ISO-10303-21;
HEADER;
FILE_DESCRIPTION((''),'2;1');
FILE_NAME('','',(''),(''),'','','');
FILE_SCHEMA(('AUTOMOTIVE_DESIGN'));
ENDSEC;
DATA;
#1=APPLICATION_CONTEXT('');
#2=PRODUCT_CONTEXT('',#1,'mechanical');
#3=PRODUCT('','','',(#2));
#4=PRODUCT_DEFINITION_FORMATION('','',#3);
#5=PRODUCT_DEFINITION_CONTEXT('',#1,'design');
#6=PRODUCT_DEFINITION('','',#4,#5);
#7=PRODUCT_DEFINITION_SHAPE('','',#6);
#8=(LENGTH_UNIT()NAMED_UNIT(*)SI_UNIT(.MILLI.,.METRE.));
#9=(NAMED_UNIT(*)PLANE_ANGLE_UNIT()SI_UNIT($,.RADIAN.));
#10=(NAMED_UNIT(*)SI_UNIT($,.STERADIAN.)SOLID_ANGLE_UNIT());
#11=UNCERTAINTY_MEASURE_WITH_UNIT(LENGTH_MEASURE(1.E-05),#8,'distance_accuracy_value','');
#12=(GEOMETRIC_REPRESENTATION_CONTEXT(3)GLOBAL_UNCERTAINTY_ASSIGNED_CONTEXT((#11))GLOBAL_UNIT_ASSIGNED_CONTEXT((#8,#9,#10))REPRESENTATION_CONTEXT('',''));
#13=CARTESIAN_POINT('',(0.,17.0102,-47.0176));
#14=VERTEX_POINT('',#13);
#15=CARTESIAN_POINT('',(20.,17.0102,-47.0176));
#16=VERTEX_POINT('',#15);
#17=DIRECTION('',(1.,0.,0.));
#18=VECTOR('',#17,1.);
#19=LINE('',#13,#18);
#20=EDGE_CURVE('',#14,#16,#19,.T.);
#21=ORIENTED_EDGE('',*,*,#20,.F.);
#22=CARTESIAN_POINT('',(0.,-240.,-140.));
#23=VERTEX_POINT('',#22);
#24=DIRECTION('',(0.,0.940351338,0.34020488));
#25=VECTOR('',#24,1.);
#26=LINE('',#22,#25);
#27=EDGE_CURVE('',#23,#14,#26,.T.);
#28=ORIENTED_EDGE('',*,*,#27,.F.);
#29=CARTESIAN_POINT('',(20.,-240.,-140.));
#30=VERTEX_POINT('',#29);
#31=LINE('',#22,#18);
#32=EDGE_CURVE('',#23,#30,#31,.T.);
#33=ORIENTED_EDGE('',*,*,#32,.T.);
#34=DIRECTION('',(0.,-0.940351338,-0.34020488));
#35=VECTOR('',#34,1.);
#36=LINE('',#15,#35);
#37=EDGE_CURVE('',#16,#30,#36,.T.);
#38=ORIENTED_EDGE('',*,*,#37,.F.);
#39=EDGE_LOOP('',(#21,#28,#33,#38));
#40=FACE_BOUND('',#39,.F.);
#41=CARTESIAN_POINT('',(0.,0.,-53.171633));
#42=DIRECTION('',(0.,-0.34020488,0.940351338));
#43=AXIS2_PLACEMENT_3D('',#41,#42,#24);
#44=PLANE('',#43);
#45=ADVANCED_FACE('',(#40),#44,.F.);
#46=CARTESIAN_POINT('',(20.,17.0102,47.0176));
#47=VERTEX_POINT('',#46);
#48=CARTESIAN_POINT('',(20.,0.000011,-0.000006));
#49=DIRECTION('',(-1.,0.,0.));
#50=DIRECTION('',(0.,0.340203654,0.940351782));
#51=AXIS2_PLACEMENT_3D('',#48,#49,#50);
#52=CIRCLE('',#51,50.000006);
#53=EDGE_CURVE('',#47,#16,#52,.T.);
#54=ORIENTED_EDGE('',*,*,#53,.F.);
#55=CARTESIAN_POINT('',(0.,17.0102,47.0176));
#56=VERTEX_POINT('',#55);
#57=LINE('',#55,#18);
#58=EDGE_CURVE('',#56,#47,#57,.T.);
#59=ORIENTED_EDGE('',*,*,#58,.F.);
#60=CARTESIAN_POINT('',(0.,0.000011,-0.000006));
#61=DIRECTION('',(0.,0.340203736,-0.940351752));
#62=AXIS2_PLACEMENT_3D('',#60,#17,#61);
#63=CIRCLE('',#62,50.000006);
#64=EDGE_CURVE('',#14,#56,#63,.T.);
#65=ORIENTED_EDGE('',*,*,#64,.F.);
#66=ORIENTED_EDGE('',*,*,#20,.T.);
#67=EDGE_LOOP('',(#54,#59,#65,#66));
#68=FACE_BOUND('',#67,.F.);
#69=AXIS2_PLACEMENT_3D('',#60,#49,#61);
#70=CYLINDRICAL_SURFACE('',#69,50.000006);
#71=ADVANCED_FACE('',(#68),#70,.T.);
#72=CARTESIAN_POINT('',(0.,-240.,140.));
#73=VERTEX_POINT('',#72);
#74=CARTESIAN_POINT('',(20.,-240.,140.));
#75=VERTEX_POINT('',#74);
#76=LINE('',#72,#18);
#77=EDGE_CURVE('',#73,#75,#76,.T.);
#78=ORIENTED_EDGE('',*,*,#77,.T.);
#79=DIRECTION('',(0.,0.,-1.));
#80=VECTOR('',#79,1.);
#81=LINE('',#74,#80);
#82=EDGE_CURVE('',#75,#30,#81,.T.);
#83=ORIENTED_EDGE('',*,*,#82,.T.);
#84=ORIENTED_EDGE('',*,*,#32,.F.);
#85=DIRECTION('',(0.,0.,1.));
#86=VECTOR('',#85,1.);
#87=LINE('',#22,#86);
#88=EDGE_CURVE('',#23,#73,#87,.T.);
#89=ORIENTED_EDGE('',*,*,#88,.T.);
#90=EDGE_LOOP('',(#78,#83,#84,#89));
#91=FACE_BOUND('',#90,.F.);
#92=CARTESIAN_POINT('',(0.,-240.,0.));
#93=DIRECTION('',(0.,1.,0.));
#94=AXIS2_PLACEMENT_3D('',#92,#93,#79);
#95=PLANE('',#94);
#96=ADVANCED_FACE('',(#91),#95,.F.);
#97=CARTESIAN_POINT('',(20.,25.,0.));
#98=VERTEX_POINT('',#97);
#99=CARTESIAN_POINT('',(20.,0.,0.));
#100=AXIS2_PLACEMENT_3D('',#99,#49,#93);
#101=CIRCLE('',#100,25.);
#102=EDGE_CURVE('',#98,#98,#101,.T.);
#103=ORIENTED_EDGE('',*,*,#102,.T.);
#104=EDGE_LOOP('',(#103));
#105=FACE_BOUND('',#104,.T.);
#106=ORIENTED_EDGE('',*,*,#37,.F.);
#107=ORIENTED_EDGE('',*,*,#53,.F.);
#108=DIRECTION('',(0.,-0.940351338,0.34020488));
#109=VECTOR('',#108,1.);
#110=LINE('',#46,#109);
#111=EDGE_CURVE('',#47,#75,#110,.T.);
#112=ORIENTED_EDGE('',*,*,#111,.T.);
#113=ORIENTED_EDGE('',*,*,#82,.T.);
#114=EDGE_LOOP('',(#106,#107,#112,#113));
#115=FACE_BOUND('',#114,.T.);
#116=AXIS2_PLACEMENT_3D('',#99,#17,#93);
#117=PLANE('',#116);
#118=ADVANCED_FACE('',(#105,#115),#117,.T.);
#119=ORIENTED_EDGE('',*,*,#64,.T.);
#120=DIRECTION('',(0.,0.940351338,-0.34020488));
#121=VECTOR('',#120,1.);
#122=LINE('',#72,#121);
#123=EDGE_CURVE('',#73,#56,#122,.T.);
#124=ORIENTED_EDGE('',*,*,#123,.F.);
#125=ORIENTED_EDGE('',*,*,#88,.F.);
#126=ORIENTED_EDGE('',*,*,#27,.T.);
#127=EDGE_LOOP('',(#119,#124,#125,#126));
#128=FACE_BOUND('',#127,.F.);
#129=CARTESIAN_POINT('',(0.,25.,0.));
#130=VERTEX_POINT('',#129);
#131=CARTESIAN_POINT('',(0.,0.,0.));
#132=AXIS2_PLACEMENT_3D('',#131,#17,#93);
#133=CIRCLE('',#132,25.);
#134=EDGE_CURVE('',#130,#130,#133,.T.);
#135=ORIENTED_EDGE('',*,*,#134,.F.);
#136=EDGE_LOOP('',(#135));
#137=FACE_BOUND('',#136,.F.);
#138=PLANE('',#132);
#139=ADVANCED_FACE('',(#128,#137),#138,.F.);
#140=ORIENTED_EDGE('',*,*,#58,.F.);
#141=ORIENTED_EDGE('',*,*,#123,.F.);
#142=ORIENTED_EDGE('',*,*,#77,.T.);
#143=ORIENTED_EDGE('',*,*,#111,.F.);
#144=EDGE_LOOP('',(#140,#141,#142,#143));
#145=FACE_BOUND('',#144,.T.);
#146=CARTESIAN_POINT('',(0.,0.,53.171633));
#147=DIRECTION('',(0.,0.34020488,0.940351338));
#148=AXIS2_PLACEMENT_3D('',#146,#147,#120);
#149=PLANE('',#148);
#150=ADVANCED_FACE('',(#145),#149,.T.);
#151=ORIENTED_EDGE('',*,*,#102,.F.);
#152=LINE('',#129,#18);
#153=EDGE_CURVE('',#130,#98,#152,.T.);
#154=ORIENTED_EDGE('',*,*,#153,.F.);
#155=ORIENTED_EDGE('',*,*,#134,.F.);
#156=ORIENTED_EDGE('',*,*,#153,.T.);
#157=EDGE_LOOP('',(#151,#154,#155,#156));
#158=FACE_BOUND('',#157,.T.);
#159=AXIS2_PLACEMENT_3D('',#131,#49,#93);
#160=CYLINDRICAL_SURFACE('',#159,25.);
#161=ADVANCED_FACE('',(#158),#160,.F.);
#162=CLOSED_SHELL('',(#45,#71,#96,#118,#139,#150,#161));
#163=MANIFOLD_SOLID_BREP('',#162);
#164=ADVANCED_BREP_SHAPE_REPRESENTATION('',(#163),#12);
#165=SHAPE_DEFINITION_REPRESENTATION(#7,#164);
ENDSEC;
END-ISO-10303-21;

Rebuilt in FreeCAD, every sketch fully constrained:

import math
import FreeCAD as App
import Part
import Sketcher

doc = App.newDocument("Part")
body = doc.addObject("PartDesign::Body", "Body")

# Sketch on YZ plane
sketch1 = doc.addObject("Sketcher::SketchObject", "Sketch")
body.addObject(sketch1)
sketch1.AttachmentSupport = (doc.YZ_Plane, [""])
sketch1.MapMode = "FlatFace"
sketch1.addGeometry(Part.ArcOfCircle(Part.Circle(App.Vector(0, 0, 0), App.Vector(0, 0, 1), 50.000016), math.radians(-70.110703), math.radians(70.110703)), False)
sketch1.addGeometry(Part.LineSegment(App.Vector(17.0102, 47.0176, 0), App.Vector(-240, 140, 0)), False)
sketch1.addGeometry(Part.LineSegment(App.Vector(-240, 140, 0), App.Vector(-240, -140, 0)), False)
sketch1.addGeometry(Part.LineSegment(App.Vector(-240, -140, 0), App.Vector(17.0102, -47.0176, 0)), False)
sketch1.addGeometry(Part.Circle(App.Vector(0, 0, 0), App.Vector(0, 0, 1), 25), False)
sketch1.addConstraint(Sketcher.Constraint("Tangent", 0, 2, 1, 1))
sketch1.addConstraint(Sketcher.Constraint("Coincident", 1, 2, 2, 1))
sketch1.addConstraint(Sketcher.Constraint("Coincident", 2, 2, 3, 1))
sketch1.addConstraint(Sketcher.Constraint("Tangent", 3, 2, 0, 1))
sketch1.addConstraint(Sketcher.Constraint("Vertical", 2))
sketch1.addConstraint(Sketcher.Constraint("Coincident", 0, 3, -1, 1))
sketch1.addConstraint(Sketcher.Constraint("Coincident", 4, 3, -1, 1))
sketch1.addConstraint(Sketcher.Constraint("Vertical", 0, 2, 3, 2))
sketch1.addConstraint(Sketcher.Constraint("Diameter", 4, 50.0))
sketch1.addConstraint(Sketcher.Constraint("Radius", 0, 50.0))
sketch1.addConstraint(Sketcher.Constraint("DistanceY", 2, 2, 2, 1, 280.0))
sketch1.addConstraint(Sketcher.Constraint("DistanceX", 1, 2, -1, 1, 240.0))
pad1 = doc.addObject("PartDesign::Pad", "Pad")
body.addObject(pad1)
pad1.Profile = sketch1
pad1.Length = 20

doc.recompute()
